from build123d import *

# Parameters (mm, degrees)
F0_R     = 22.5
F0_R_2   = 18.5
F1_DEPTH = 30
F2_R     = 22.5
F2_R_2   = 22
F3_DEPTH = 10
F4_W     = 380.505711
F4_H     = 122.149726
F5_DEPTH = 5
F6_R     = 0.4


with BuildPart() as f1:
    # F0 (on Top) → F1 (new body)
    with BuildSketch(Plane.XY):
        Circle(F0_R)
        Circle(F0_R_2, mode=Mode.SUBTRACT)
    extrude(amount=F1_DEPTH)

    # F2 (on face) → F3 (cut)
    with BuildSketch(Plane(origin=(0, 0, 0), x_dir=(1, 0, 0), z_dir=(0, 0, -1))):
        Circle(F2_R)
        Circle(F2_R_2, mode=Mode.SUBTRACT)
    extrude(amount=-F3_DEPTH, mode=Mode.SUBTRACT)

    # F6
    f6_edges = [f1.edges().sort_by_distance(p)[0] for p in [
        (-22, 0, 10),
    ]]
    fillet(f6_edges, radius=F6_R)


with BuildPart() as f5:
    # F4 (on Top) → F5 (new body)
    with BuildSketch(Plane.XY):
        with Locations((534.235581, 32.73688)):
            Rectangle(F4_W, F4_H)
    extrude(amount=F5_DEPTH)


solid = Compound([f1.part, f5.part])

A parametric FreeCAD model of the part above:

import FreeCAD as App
import Part
import Sketcher
from FreeCAD import Vector
Q = App.Units.Quantity


def edges_at(feature, points):
    """Names of the edges that pass closest to the given points."""
    edges = feature.Shape.Edges
    near = lambda p: min(range(len(edges)), key=lambda i: edges[i].distToShape(Part.Vertex(*p))[0])
    return sorted({f"Edge{near(p) + 1}" for p in points})

doc = App.newDocument("Part")
body = doc.addObject("PartDesign::Body", "Body")

sketch1 = doc.addObject("Sketcher::SketchObject", "Sketch")
body.addObject(sketch1)
sketch1.AttachmentSupport = (doc.XY_Plane, [""])
sketch1.MapMode = "FlatFace"
sketch1.addGeometry([
    Part.Circle(Vector(0, 0, 0), Vector(0, 0, 1), 22),
    Part.Circle(Vector(0, 0, 0), Vector(0, 0, 1), 18),
], False)
sketch1.addConstraint([
    Sketcher.Constraint("Coincident", 0, 3, -1, 1),
    Sketcher.Constraint("Coincident", 1, 3, -1, 1),
    Sketcher.Constraint("Diameter", 0, Q("45 mm")),
    Sketcher.Constraint("Diameter", 1, Q("37 mm")),
])
pad1 = doc.addObject("PartDesign::Pad", "Pad")
body.addObject(pad1)
pad1.Profile = sketch1
pad1.Length = 30

sketch2 = doc.addObject("Sketcher::SketchObject", "Sketch001")
body.addObject(sketch2)
sketch2.AttachmentSupport = (doc.XY_Plane, [""])
sketch2.MapMode = "FlatFace"
sketch2.addGeometry([
    Part.Circle(Vector(0, 0, 0), Vector(0, 0, 1), 22),
    Part.Circle(Vector(0, 0, 0), Vector(0, 0, 1), 22),
], False)
sketch2.addConstraint([
    Sketcher.Constraint("Coincident", 0, 3, -1, 1),
    Sketcher.Constraint("Coincident", 1, 3, -1, 1),
    Sketcher.Constraint("Diameter", 0, Q("45 mm")),
    Sketcher.Constraint("Diameter", 1, Q("44 mm")),
])
pocket1 = doc.addObject("PartDesign::Pocket", "Pocket")
body.addObject(pocket1)
pocket1.Profile = sketch2
pocket1.Length = 10
pocket1.Reversed = True
doc.recompute()

fillet = doc.addObject("PartDesign::Fillet", "Fillet")
body.addObject(fillet)
fillet.Base = (pocket1, edges_at(pocket1, [(-22, 0, 10)]))
fillet.Radius = 0.4
body2 = doc.addObject("PartDesign::Body", "Body001")

sketch3 = doc.addObject("Sketcher::SketchObject", "Sketch002")
body2.addObject(sketch3)
sketch3.AttachmentSupport = (doc.getObject("XY_Plane001"), [""])
sketch3.MapMode = "FlatFace"
sketch3.addGeometry([
    Part.LineSegment(Vector(344, 94, 0), Vector(344, -28, 0)),
    Part.LineSegment(Vector(344, -28, 0), Vector(724, -28, 0)),
    Part.LineSegment(Vector(724, -28, 0), Vector(724, 94, 0)),
    Part.LineSegment(Vector(724, 94, 0), Vector(344, 94, 0)),
], False)
sketch3.addConstraint([
    Sketcher.Constraint("Coincident", 0, 2, 1, 1),
    Sketcher.Constraint("Coincident", 1, 2, 2, 1),
    Sketcher.Constraint("Coincident", 2, 2, 3, 1),
    Sketcher.Constraint("Coincident", 3, 2, 0, 1),
    Sketcher.Constraint("Vertical", 0),
    Sketcher.Constraint("Horizontal", 1),
    Sketcher.Constraint("Vertical", 2),
    Sketcher.Constraint("Horizontal", 3),
    Sketcher.Constraint("DistanceX", 1, 1, 1, 2, Q("380.505711 mm")),
    Sketcher.Constraint("DistanceY", 0, 2, 0, 1, Q("122.149726 mm")),
    Sketcher.Constraint("DistanceX", -1, 1, 0, 2, Q("343.982726 mm")),
    Sketcher.Constraint("DistanceY", 0, 2, -1, 1, Q("28.337983 mm")),
])
pad2 = doc.addObject("PartDesign::Pad", "Pad001")
body2.addObject(pad2)
pad2.Profile = sketch3
pad2.Length = 5

doc.recompute()
